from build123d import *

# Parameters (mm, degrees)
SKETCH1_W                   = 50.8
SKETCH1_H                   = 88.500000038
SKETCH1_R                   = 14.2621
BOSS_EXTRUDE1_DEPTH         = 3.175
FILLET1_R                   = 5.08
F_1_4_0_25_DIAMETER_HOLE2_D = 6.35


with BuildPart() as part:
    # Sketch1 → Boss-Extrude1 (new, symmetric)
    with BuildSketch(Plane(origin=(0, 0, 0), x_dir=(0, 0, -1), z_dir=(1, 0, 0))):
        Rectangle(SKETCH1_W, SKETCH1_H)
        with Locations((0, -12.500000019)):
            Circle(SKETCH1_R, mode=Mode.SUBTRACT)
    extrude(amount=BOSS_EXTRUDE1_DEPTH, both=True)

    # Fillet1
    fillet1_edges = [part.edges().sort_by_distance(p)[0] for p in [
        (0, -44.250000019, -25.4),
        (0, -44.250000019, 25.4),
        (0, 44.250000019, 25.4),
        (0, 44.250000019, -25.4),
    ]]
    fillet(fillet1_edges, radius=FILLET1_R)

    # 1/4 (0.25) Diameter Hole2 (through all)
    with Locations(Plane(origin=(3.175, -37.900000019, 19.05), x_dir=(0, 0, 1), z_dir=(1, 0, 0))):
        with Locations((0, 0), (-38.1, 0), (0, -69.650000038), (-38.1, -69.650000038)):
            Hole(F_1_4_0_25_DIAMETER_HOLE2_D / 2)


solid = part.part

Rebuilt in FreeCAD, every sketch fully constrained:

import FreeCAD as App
import Part
import Sketcher
Q = App.Units.Quantity


def edges_at(feature, points):
    """Names of the edges that pass closest to the given points."""
    edges = feature.Shape.Edges
    near = lambda p: min(range(len(edges)), key=lambda i: edges[i].distToShape(Part.Vertex(*p))[0])
    return sorted({f"Edge{near(p) + 1}" for p in points})


def add_polygon(sketch, points):
    """Adds a closed chain of lines whose ends are joined by coincident constraints."""
    first, n = sketch.GeometryCount, len(points)
    for a, b in zip(points, points[1:] + points[:1]):
        sketch.addGeometry(Part.LineSegment(App.Vector(*a, 0), App.Vector(*b, 0)), False)
    for i in range(n):
        sketch.addConstraint(Sketcher.Constraint("Coincident", first + i, 2, first + (i + 1) % n, 1))

doc = App.newDocument("Part")
body = doc.addObject("PartDesign::Body", "Body")

# Sketch on YZ plane
sketch1 = body.newObject("Sketcher::SketchObject", "Sketch")
sketch1.AttachmentSupport = (doc.getObject("YZ_Plane"), [""])
sketch1.MapMode = "FlatFace"
add_polygon(sketch1, [(44, 25), (-44, 25), (-44, -25), (44, -25)])  # lines 0-3
sketch1.addGeometry(Part.Circle(App.Vector(-13, 0, 0), App.Vector(0, 0, 1), 14), False)  # 4
sketch1.addConstraint([
    Sketcher.Constraint("Horizontal", 0),
    Sketcher.Constraint("Vertical", 1),
    Sketcher.Constraint("Horizontal", 2),
    Sketcher.Constraint("Vertical", 3),
    Sketcher.Constraint("Symmetric", 0, 2, 2, 2, -1, 1),
    Sketcher.Constraint("PointOnObject", 4, 3, -1),
    Sketcher.Constraint("DistanceY", 1, 2, 1, 1, Q("2 in")),
    Sketcher.Constraint("Diameter", 4, Q("1.123 in")),
    Sketcher.Constraint("DistanceX", 0, 2, 4, 3, Q("1.25 in")),
    Sketcher.Constraint("DistanceX", 0, 2, 0, 1, 88.5),
])
pad1 = body.newObject("PartDesign::Pad", "Pad")
pad1.Profile = sketch1
pad1.Length = Q("0.25 in")
pad1.Midplane = True
doc.recompute()

fillet = body.newObject("PartDesign::Fillet", "Fillet")
fillet.Base = (pad1, edges_at(pad1, [
    (0, -44.25, -25.4),
    (0, -44.25, 25.4),
    (0, 44.25, 25.4),
    (0, 44.25, -25.4),
]))
fillet.Radius = Q("0.2 in")

# Sketch on YZ plane
sketch2 = body.newObject("Sketcher::SketchObject", "Sketch001")
sketch2.AttachmentSupport = (doc.getObject("YZ_Plane"), [""])
sketch2.MapMode = "FlatFace"
sketch2.AttachmentOffset = App.Placement(App.Vector(0, 0, 0.125 * 25.4), App.Rotation())
sketch2.addGeometry([
    Part.Circle(App.Vector(-37.9, 19.1, 0), App.Vector(0, 0, 1), 3.2),
    Part.Circle(App.Vector(-37.9, -19.1, 0), App.Vector(0, 0, 1), 3.2),
    Part.Circle(App.Vector(31.8, 19.1, 0), App.Vector(0, 0, 1), 3.2),
    Part.Circle(App.Vector(31.8, -19.1, 0), App.Vector(0, 0, 1), 3.2),
], False)
sketch2.addConstraint([
    Sketcher.Constraint("Equal", 0, 1),
    Sketcher.Constraint("Equal", 1, 2),
    Sketcher.Constraint("Equal", 2, 3),
    Sketcher.Constraint("Symmetric", 0, 3, 1, 3, -1),
    Sketcher.Constraint("Symmetric", 2, 3, 3, 3, -1),
    Sketcher.Constraint("Horizontal", 0, 3, 2, 3),
    Sketcher.Constraint("Diameter", 0, Q("0.25 in")),
    Sketcher.Constraint("DistanceY", 1, 3, 0, 3, Q("1.5 in")),
    Sketcher.Constraint("DistanceX", -1, 1, 2, 3, Q("1.25 in")),
    Sketcher.Constraint("DistanceX", 0, 3, -1, 1, 37.9),
])
doc.recompute()
hole = body.newObject("PartDesign::Hole", "Hole")
hole.Profile = sketch2
hole.ThreadType = "None"
hole.Diameter = Q("0.25 in")
hole.DepthType = "ThroughAll"

doc.recompute()
